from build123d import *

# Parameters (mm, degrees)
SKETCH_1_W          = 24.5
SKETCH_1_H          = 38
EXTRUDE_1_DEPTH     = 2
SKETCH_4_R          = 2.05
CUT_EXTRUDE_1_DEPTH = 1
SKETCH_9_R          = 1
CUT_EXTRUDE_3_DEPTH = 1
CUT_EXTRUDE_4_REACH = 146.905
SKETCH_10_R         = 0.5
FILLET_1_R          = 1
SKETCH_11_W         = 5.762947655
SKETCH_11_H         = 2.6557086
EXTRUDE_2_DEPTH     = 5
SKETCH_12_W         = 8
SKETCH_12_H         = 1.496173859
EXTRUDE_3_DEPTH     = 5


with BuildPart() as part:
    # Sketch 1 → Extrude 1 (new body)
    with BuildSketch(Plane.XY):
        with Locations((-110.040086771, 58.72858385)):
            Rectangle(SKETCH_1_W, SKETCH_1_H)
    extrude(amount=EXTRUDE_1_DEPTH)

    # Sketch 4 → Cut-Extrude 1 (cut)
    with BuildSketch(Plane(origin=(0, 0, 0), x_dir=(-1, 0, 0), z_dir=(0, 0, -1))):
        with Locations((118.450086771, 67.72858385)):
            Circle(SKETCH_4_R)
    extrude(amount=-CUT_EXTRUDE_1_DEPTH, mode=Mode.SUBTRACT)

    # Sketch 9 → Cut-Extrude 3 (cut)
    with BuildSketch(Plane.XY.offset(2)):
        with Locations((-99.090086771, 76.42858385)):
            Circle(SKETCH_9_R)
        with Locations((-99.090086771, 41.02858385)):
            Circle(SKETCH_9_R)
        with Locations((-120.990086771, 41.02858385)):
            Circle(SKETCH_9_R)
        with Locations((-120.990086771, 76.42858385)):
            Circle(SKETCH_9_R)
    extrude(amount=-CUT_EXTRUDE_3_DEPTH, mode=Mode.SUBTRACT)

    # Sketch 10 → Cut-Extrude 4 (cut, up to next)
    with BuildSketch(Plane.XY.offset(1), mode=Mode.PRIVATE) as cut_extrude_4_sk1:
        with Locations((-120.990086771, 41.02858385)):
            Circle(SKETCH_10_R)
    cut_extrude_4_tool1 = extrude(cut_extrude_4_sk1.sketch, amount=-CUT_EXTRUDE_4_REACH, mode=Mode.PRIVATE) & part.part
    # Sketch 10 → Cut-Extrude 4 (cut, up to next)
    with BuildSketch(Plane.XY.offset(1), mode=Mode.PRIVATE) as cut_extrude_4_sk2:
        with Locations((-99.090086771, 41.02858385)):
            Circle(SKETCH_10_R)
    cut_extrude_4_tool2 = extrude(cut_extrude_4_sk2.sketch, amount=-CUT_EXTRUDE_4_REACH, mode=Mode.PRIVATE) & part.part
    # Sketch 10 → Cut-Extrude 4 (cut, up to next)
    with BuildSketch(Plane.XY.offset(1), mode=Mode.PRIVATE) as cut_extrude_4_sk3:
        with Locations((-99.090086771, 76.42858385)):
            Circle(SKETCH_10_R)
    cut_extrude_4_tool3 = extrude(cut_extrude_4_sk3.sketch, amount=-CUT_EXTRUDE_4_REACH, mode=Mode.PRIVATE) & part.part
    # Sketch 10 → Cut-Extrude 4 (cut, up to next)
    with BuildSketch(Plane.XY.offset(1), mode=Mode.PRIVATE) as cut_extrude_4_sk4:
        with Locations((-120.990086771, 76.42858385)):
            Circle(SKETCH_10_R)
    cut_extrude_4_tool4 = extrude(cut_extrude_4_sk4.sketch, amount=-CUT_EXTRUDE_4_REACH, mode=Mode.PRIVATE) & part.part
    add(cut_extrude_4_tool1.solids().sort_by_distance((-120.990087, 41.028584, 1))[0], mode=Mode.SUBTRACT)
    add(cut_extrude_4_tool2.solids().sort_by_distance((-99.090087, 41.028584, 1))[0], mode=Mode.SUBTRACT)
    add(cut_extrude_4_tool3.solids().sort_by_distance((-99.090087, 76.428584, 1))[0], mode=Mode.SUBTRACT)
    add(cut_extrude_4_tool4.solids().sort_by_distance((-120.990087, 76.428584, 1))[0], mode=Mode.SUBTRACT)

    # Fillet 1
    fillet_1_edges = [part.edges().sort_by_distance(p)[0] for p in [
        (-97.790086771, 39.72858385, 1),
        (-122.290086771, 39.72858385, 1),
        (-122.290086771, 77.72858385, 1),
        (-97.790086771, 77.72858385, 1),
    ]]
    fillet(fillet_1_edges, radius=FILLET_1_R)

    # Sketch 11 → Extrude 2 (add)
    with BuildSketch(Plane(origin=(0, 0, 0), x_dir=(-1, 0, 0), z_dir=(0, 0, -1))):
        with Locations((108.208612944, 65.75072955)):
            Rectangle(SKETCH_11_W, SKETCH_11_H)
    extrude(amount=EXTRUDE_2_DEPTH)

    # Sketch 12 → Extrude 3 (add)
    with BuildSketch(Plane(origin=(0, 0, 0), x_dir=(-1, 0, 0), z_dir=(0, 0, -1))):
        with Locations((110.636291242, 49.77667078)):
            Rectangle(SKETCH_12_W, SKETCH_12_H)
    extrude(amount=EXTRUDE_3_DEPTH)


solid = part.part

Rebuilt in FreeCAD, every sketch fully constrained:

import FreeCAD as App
import Part
import Sketcher

V = App.Vector


def edges_at(feature, points):
    """Names of the edges that pass closest to the given points."""
    edges = feature.Shape.Edges
    near = lambda p: min(range(len(edges)), key=lambda i: edges[i].distToShape(Part.Vertex(*p))[0])
    return sorted({f"Edge{near(p) + 1}" for p in points})

doc = App.newDocument("Part")
body = doc.addObject("PartDesign::Body", "Body")

sketch1 = body.newObject("Sketcher::SketchObject", "Sketch")
sketch1.AttachmentSupport = (doc.getObject("XY_Plane"), [""])
sketch1.MapMode = "FlatFace"
sketch1.addGeometry([
    Part.LineSegment(V(-122, 78, 0), V(-122, 40, 0)),
    Part.LineSegment(V(-122, 40, 0), V(-98, 40, 0)),
    Part.LineSegment(V(-98, 40, 0), V(-98, 78, 0)),
    Part.LineSegment(V(-98, 78, 0), V(-122, 78, 0)),
], False)
sketch1.addConstraint([
    Sketcher.Constraint("Coincident", 0, 2, 1, 1),
    Sketcher.Constraint("Coincident", 1, 2, 2, 1),
    Sketcher.Constraint("Coincident", 2, 2, 3, 1),
    Sketcher.Constraint("Coincident", 3, 2, 0, 1),
    Sketcher.Constraint("Vertical", 0),
    Sketcher.Constraint("Horizontal", 1),
    Sketcher.Constraint("Vertical", 2),
    Sketcher.Constraint("Horizontal", 3),
    Sketcher.Constraint("DistanceY", 0, 2, 0, 1, 38.0),
    Sketcher.Constraint("DistanceX", 1, 1, 1, 2, 24.5),
    Sketcher.Constraint("DistanceX", 0, 2, -1, 1, 122.290087),
    Sketcher.Constraint("DistanceY", -1, 1, 0, 2, 39.728584),
])
pad1 = body.newObject("PartDesign::Pad", "Pad")
pad1.Profile = sketch1
pad1.Length = 2

sketch2 = body.newObject("Sketcher::SketchObject", "Sketch001")
sketch2.AttachmentSupport = (doc.getObject("XY_Plane"), [""])
sketch2.MapMode = "FlatFace"
sketch2.addGeometry(Part.Circle(V(-118.5, 67.7, 0), V(0, 0, 1), 2), False)
sketch2.addConstraint([
    Sketcher.Constraint("Diameter", 0, 4.1),
    Sketcher.Constraint("DistanceX", 0, 3, -1, 1, 118.450087),
    Sketcher.Constraint("DistanceY", -1, 1, 0, 3, 67.728584),
])
pocket1 = body.newObject("PartDesign::Pocket", "Pocket")
pocket1.Profile = sketch2
pocket1.Length = 1
pocket1.Reversed = True

sketch3 = body.newObject("Sketcher::SketchObject", "Sketch002")
sketch3.AttachmentSupport = (doc.getObject("XY_Plane"), [""])
sketch3.MapMode = "FlatFace"
sketch3.AttachmentOffset = App.Placement(V(0, 0, 2), App.Rotation())
sketch3.addGeometry([
    Part.Circle(V(-99.1, 76.4, 0), V(0, 0, 1), 1),
    Part.Circle(V(-99.1, 41, 0), V(0, 0, 1), 1),
    Part.Circle(V(-121, 41, 0), V(0, 0, 1), 1),
    Part.Circle(V(-121, 76.4, 0), V(0, 0, 1), 1),
], False)
sketch3.addConstraint([
    Sketcher.Constraint("Equal", 0, 1),
    Sketcher.Constraint("Equal", 1, 2),
    Sketcher.Constraint("Equal", 2, 3),
    Sketcher.Constraint("Horizontal", 1, 3, 2, 3),
    Sketcher.Constraint("Horizontal", 0, 3, 3, 3),
    Sketcher.Constraint("Vertical", 0, 3, 1, 3),
    Sketcher.Constraint("Vertical", 2, 3, 3, 3),
    Sketcher.Constraint("Diameter", 0, 2.0),
    Sketcher.Constraint("DistanceY", 1, 3, 0, 3, 35.4),
    Sketcher.Constraint("DistanceX", 2, 3, 1, 3, 21.9),
    Sketcher.Constraint("DistanceX", 0, 3, -1, 1, 99.090087),
    Sketcher.Constraint("DistanceY", -1, 1, 0, 3, 76.428584),
])
pocket2 = body.newObject("PartDesign::Pocket", "Pocket001")
pocket2.Profile = sketch3
pocket2.Length = 1

sketch4 = body.newObject("Sketcher::SketchObject", "Sketch003")
sketch4.AttachmentSupport = (doc.getObject("XY_Plane"), [""])
sketch4.MapMode = "FlatFace"
sketch4.AttachmentOffset = App.Placement(V(0, 0, 1), App.Rotation())
sketch4.addGeometry(Part.Circle(V(-121, 41, 0), V(0, 0, 1), 0.5), False)
sketch4.addConstraint([
    Sketcher.Constraint("Diameter", 0, 1.0),
    Sketcher.Constraint("DistanceX", 0, 3, -1, 1, 120.990087),
    Sketcher.Constraint("DistanceY", -1, 1, 0, 3, 41.028584),
])
pocket3 = body.newObject("PartDesign::Pocket", "Pocket002")
pocket3.Profile = sketch4
pocket3.Type = "UpToFirst"

sketch5 = body.newObject("Sketcher::SketchObject", "Sketch004")
sketch5.AttachmentSupport = (doc.getObject("XY_Plane"), [""])
sketch5.MapMode = "FlatFace"
sketch5.AttachmentOffset = App.Placement(V(0, 0, 1), App.Rotation())
sketch5.addGeometry(Part.Circle(V(-99.1, 41, 0), V(0, 0, 1), 0.5), False)
sketch5.addConstraint([
    Sketcher.Constraint("Diameter", 0, 1.0),
    Sketcher.Constraint("DistanceX", 0, 3, -1, 1, 99.090087),
    Sketcher.Constraint("DistanceY", -1, 1, 0, 3, 41.028584),
])
pocket4 = body.newObject("PartDesign::Pocket", "Pocket003")
pocket4.Profile = sketch5
pocket4.Type = "UpToFirst"

sketch6 = body.newObject("Sketcher::SketchObject", "Sketch005")
sketch6.AttachmentSupport = (doc.getObject("XY_Plane"), [""])
sketch6.MapMode = "FlatFace"
sketch6.AttachmentOffset = App.Placement(V(0, 0, 1), App.Rotation())
sketch6.addGeometry(Part.Circle(V(-99.1, 76.4, 0), V(0, 0, 1), 0.5), False)
sketch6.addConstraint([
    Sketcher.Constraint("Diameter", 0, 1.0),
    Sketcher.Constraint("DistanceX", 0, 3, -1, 1, 99.090087),
    Sketcher.Constraint("DistanceY", -1, 1, 0, 3, 76.428584),
])
pocket5 = body.newObject("PartDesign::Pocket", "Pocket004")
pocket5.Profile = sketch6
pocket5.Type = "UpToFirst"

sketch7 = body.newObject("Sketcher::SketchObject", "Sketch006")
sketch7.AttachmentSupport = (doc.getObject("XY_Plane"), [""])
sketch7.MapMode = "FlatFace"
sketch7.AttachmentOffset = App.Placement(V(0, 0, 1), App.Rotation())
sketch7.addGeometry(Part.Circle(V(-121, 76.4, 0), V(0, 0, 1), 0.5), False)
sketch7.addConstraint([
    Sketcher.Constraint("Diameter", 0, 1.0),
    Sketcher.Constraint("DistanceX", 0, 3, -1, 1, 120.990087),
    Sketcher.Constraint("DistanceY", -1, 1, 0, 3, 76.428584),
])
pocket6 = body.newObject("PartDesign::Pocket", "Pocket005")
pocket6.Profile = sketch7
pocket6.Type = "UpToFirst"
doc.recompute()

fillet = body.newObject("PartDesign::Fillet", "Fillet")
fillet.Base = (pocket6, edges_at(pocket6, [
    (-97.79, 39.729, 1),
    (-122.29, 39.729, 1),
    (-122.29, 77.729, 1),
    (-97.79, 77.729, 1),
]))
fillet.Radius = 1

sketch8 = body.newObject("Sketcher::SketchObject", "Sketch007")
sketch8.AttachmentSupport = (doc.getObject("XY_Plane"), [""])
sketch8.MapMode = "FlatFace"
sketch8.addGeometry([
    Part.LineSegment(V(-105.3, 67.1, 0), V(-105.3, 64.4, 0)),
    Part.LineSegment(V(-105.3, 64.4, 0), V(-111.1, 64.4, 0)),
    Part.LineSegment(V(-111.1, 64.4, 0), V(-111.1, 67.1, 0)),
    Part.LineSegment(V(-111.1, 67.1, 0), V(-105.3, 67.1, 0)),
], False)
sketch8.addConstraint([
    Sketcher.Constraint("Coincident", 0, 2, 1, 1),
    Sketcher.Constraint("Coincident", 1, 2, 2, 1),
    Sketcher.Constraint("Coincident", 2, 2, 3, 1),
    Sketcher.Constraint("Coincident", 3, 2, 0, 1),
    Sketcher.Constraint("Vertical", 0),
    Sketcher.Constraint("Horizontal", 1),
    Sketcher.Constraint("Vertical", 2),
    Sketcher.Constraint("Horizontal", 3),
    Sketcher.Constraint("DistanceY", 0, 2, 0, 1, 2.655709),
    Sketcher.Constraint("DistanceX", 1, 2, 1, 1, 5.762948),
    Sketcher.Constraint("DistanceX", 0, 2, -1, 1, 105.327139),
    Sketcher.Constraint("DistanceY", -1, 1, 0, 2, 64.422875),
])
pad2 = body.newObject("PartDesign::Pad", "Pad001")
pad2.Profile = sketch8
pad2.Length = 5
pad2.Reversed = True

sketch9 = body.newObject("Sketcher::SketchObject", "Sketch008")
sketch9.AttachmentSupport = (doc.getObject("XY_Plane"), [""])
sketch9.MapMode = "FlatFace"
sketch9.addGeometry([
    Part.LineSegment(V(-106.6, 50.5, 0), V(-106.6, 49, 0)),
    Part.LineSegment(V(-106.6, 49, 0), V(-114.6, 49, 0)),
    Part.LineSegment(V(-114.6, 49, 0), V(-114.6, 50.5, 0)),
    Part.LineSegment(V(-114.6, 50.5, 0), V(-106.6, 50.5, 0)),
], False)
sketch9.addConstraint([
    Sketcher.Constraint("Coincident", 0, 2, 1, 1),
    Sketcher.Constraint("Coincident", 1, 2, 2, 1),
    Sketcher.Constraint("Coincident", 2, 2, 3, 1),
    Sketcher.Constraint("Coincident", 3, 2, 0, 1),
    Sketcher.Constraint("Vertical", 0),
    Sketcher.Constraint("Horizontal", 1),
    Sketcher.Constraint("Vertical", 2),
    Sketcher.Constraint("Horizontal", 3),
    Sketcher.Constraint("DistanceX", 1, 2, 1, 1, 8.0),
    Sketcher.Constraint("DistanceY", 0, 2, 0, 1, 1.496174),
    Sketcher.Constraint("DistanceX", 0, 2, -1, 1, 106.636291),
    Sketcher.Constraint("DistanceY", -1, 1, 0, 2, 49.028584),
])
pad3 = body.newObject("PartDesign::Pad", "Pad002")
pad3.Profile = sketch9
pad3.Length = 5
pad3.Reversed = True

doc.recompute()
